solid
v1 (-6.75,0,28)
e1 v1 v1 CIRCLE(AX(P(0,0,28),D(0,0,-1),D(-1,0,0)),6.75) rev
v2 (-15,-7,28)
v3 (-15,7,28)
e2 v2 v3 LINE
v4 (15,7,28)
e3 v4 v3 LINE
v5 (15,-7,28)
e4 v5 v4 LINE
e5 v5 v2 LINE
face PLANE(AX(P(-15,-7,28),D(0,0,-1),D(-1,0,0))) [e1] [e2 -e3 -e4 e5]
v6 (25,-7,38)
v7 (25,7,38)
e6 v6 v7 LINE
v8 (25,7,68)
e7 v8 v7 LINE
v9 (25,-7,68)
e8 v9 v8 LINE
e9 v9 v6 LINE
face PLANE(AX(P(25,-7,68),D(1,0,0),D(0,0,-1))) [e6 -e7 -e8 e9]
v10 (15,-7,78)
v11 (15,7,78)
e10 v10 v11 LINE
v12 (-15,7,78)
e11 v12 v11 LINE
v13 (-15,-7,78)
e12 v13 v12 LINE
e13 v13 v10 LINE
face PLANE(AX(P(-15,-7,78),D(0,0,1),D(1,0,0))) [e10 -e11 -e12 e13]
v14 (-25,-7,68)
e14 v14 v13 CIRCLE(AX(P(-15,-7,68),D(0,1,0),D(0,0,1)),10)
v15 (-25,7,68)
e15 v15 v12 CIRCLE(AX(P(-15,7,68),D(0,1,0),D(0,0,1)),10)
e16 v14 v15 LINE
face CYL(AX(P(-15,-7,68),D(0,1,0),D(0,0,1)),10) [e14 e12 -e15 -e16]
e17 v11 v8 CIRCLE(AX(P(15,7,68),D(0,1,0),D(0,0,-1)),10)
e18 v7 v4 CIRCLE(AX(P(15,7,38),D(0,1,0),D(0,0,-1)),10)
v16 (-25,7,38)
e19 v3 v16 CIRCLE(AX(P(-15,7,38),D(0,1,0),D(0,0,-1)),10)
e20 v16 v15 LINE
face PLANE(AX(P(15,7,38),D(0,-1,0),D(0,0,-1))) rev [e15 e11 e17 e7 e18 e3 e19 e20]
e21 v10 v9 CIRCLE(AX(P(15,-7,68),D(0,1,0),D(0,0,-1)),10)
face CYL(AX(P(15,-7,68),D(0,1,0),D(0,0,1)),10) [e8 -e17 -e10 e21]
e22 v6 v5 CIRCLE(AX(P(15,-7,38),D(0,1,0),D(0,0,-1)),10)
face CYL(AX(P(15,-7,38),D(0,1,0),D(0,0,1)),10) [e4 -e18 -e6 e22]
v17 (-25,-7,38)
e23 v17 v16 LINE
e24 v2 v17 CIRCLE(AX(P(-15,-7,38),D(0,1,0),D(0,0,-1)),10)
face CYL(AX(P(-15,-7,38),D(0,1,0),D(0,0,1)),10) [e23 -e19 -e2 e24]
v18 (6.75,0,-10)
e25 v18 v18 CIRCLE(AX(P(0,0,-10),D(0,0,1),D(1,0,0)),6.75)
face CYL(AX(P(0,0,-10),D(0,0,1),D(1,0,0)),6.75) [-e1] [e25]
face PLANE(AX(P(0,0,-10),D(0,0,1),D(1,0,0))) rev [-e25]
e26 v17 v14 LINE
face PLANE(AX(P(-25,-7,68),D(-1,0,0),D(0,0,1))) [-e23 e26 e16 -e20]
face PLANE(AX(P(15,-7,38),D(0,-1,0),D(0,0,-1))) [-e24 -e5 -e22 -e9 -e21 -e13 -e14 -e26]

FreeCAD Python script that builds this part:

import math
import FreeCAD as App
import Part
import Sketcher

V = App.Vector
Q = App.Units.Quantity

doc = App.newDocument("Part")
params = doc.addObject("Spreadsheet::Sheet", "Params")
for row, (alias, value) in enumerate([
    ("sketch1_diameter", "13.5 mm"),
    ("pad1_length", "73 mm"),
    ("pad1_length2", "10 mm"),
    ("sketch2_radius", "10 mm"),
    ("sketch2_width", "30 mm"),
    ("pad2_length", "7 mm"),
    ("pad2_length2", "7 mm"),
], start=1):
    params.set(f"A{row}", alias)
    params.set(f"B{row}", "=" + value)
    params.setAlias(f"B{row}", alias)

body = doc.addObject("PartDesign::Body", "Body")

# Sketch on XY plane
sketch1 = body.newObject("Sketcher::SketchObject", "Sketch")
sketch1.AttachmentSupport = (doc.getObject("XY_Plane"), [""])
sketch1.MapMode = "FlatFace"
sketch1.addGeometry(Part.Circle(V(0, 0, 0), V(0, 0, 1), 7), False)
sketch1.addConstraint([
    Sketcher.Constraint("Coincident", 0, 3, -1, 1),
    Sketcher.Constraint("Diameter", 0, Q("13.5 mm")),
])
sketch1.setExpression("Constraints[1]", "Params.sketch1_diameter")
pad1 = body.newObject("PartDesign::Pad", "Pad")
pad1.Profile = sketch1
pad1.Type = "TwoLengths"
pad1.setExpression("Length", "Params.pad1_length")
pad1.setExpression("Length2", "Params.pad1_length2")

# Sketch on XZ plane
sketch2 = body.newObject("Sketcher::SketchObject", "Sketch001")
sketch2.AttachmentSupport = (doc.getObject("XZ_Plane"), [""])
sketch2.MapMode = "FlatFace"
sketch2.addGeometry([
    Part.LineSegment(V(-15, 78, 0), V(15, 78, 0)),  # 0
    Part.ArcOfCircle(Part.Circle(V(15, 68, 0), V(0, 0, 1), 10), math.radians(0), math.radians(90)),  # 1
    Part.LineSegment(V(25, 68, 0), V(25, 38, 0)),  # 2
    Part.ArcOfCircle(Part.Circle(V(15, 38, 0), V(0, 0, 1), 10), math.radians(-90), math.radians(0)),  # 3
    Part.LineSegment(V(15, 28, 0), V(-15, 28, 0)),  # 4
    Part.ArcOfCircle(Part.Circle(V(-15, 38, 0), V(0, 0, 1), 10), math.radians(180), math.radians(270)),  # 5
    Part.LineSegment(V(-25, 38, 0), V(-25, 68, 0)),  # 6
    Part.ArcOfCircle(Part.Circle(V(-15, 68, 0), V(0, 0, 1), 10), math.radians(90), math.radians(180)),  # 7
], False)
sketch2.addConstraint([
    Sketcher.Constraint("Tangent", 0, 2, 1, 2),
    Sketcher.Constraint("Tangent", 1, 1, 2, 1),
    Sketcher.Constraint("Tangent", 2, 2, 3, 2),
    Sketcher.Constraint("Tangent", 3, 1, 4, 1),
    Sketcher.Constraint("Tangent", 4, 2, 5, 2),
    Sketcher.Constraint("Tangent", 5, 1, 6, 1),
    Sketcher.Constraint("Tangent", 6, 2, 7, 2),
    Sketcher.Constraint("Tangent", 7, 1, 0, 1),
    Sketcher.Constraint("Horizontal", 0),
    Sketcher.Constraint("Vertical", 2),
    Sketcher.Constraint("Horizontal", 4),
    Sketcher.Constraint("Vertical", 6),
    Sketcher.Constraint("Equal", 1, 3),
    Sketcher.Constraint("Equal", 3, 5),
    Sketcher.Constraint("Equal", 5, 7),
    Sketcher.Constraint("Equal", 4, 2),
    Sketcher.Constraint("Radius", 1, Q("10 mm")),
    Sketcher.Constraint("DistanceX", 0, 1, 0, 2, Q("30 mm")),
    Sketcher.Constraint("DistanceX", -1, 1, 1, 3, Q("15 mm")),
    Sketcher.Constraint("DistanceY", -1, 1, 1, 3, Q("68 mm")),
])
sketch2.setExpression("Constraints[16]", "Params.sketch2_radius")
sketch2.setExpression("Constraints[17]", "Params.sketch2_width")
pad2 = body.newObject("PartDesign::Pad", "Pad001")
pad2.Profile = sketch2
pad2.Type = "TwoLengths"
pad2.setExpression("Length", "Params.pad2_length")
pad2.setExpression("Length2", "Params.pad2_length2")
pad2.Reversed = True

doc.recompute()
